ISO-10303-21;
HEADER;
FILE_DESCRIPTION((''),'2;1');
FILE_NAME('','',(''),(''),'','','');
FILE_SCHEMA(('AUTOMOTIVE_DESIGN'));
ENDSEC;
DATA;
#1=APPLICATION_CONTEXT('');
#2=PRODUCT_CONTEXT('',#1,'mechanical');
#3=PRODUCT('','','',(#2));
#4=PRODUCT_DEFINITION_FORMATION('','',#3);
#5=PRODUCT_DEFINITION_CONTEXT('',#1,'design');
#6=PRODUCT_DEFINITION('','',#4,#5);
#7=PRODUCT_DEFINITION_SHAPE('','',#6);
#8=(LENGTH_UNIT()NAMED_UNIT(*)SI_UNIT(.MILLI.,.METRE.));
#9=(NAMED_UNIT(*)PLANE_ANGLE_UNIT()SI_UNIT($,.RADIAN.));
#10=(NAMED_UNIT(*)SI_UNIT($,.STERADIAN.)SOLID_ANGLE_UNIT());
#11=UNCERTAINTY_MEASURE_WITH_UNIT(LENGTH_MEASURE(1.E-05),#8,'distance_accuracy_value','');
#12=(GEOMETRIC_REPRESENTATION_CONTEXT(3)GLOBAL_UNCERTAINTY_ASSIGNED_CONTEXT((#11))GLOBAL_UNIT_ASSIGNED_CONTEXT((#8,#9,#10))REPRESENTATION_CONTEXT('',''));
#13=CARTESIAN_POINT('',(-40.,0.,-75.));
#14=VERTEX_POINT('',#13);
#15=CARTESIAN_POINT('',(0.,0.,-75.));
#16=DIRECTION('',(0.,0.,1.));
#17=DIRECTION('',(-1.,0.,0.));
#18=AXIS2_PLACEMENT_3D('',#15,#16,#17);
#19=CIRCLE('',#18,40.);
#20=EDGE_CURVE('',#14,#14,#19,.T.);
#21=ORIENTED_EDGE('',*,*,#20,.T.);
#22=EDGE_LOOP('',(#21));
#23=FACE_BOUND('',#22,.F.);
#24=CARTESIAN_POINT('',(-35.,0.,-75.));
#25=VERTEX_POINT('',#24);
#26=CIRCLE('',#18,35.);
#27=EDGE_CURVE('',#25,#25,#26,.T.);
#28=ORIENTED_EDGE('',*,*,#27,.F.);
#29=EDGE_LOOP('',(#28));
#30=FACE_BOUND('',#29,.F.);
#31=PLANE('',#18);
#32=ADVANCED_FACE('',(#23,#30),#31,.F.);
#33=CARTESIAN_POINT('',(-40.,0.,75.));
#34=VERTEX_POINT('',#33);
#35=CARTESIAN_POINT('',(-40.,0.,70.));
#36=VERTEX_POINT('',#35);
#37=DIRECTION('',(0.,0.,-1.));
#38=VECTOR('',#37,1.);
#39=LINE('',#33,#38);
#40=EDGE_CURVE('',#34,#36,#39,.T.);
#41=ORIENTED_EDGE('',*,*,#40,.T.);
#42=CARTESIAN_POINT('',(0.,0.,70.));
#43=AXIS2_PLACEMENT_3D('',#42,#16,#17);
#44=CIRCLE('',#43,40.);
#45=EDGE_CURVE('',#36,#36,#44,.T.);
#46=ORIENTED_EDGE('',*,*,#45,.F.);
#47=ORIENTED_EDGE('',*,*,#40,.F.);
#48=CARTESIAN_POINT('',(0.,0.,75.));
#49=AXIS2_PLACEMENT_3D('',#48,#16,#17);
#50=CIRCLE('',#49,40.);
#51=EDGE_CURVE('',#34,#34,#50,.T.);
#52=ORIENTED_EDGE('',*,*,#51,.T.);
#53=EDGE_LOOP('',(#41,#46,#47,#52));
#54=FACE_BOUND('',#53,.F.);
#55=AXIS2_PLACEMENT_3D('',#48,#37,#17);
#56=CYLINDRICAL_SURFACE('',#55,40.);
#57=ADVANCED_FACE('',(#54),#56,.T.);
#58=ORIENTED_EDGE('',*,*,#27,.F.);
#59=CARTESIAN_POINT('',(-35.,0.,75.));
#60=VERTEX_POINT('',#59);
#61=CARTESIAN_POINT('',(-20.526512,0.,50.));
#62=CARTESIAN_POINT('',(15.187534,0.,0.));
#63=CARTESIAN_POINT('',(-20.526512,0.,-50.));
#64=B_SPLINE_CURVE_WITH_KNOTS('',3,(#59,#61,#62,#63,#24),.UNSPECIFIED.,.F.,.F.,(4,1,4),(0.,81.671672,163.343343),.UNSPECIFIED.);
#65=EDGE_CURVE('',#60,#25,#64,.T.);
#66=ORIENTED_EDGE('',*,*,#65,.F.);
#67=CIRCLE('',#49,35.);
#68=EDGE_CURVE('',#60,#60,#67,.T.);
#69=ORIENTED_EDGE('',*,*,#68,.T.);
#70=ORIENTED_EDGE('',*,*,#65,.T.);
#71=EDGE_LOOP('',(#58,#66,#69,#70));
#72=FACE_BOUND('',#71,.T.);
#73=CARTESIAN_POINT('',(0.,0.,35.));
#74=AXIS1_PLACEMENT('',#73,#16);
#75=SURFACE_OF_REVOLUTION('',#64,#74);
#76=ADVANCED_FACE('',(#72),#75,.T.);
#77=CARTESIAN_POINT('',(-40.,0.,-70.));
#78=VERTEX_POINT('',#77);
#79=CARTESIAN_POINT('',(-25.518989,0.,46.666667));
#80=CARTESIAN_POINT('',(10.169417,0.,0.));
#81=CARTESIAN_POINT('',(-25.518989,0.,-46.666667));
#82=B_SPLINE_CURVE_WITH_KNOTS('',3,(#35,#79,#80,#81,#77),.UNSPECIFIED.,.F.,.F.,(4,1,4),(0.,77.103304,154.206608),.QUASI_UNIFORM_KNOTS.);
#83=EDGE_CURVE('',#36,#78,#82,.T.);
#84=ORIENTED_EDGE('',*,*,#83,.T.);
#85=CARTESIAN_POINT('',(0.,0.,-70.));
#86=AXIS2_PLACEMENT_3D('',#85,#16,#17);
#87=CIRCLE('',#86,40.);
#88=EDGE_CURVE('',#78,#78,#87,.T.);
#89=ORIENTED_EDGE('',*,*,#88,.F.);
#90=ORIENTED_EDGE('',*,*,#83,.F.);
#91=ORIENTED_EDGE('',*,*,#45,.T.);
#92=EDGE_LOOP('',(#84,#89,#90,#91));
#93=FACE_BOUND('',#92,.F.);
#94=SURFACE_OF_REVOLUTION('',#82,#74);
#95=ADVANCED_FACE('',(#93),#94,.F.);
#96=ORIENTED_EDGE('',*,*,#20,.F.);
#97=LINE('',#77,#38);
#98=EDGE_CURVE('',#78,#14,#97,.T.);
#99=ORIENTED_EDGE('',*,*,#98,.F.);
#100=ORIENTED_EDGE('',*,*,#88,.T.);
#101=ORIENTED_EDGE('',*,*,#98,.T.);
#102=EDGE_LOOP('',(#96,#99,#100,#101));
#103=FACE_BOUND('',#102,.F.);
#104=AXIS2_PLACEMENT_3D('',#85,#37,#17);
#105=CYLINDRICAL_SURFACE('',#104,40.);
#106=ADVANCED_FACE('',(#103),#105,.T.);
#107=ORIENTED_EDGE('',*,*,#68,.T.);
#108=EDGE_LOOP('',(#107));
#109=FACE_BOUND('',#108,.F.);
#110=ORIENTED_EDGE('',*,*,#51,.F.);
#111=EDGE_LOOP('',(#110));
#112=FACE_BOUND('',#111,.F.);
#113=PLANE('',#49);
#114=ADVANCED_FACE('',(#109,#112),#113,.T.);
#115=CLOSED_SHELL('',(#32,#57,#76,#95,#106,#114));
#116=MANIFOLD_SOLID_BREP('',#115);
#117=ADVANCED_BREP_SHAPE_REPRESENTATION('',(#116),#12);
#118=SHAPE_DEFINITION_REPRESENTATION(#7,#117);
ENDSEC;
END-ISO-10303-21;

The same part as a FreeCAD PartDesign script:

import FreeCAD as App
import Part
import Sketcher

V = App.Vector

doc = App.newDocument("Part")
body = doc.addObject("PartDesign::Body", "Body")

sketch1 = body.newObject("Sketcher::SketchObject", "Sketch")
sketch1.AttachmentSupport = (doc.getObject("XZ_Plane"), [""])
sketch1.MapMode = "FlatFace"
sketch1.addGeometry(Part.LineSegment(V(-40, 75, 0), V(-40, 70, 0)), False)
sketch1.addGeometry(Part.BSplineCurve([V(-40, 70, 0), V(-25.518989, 46.666667, 0), V(10.169417, 0, 0), V(-25.518989, -46.666667, 0), V(-40, -70, 0)], [4, 1, 4], [0, 77.103304, 154.206608], False, 3, [1, 1, 1, 1, 1], False), False)
sketch1.addGeometry(Part.LineSegment(V(-40, -70, 0), V(-40, -75, 0)), False)
sketch1.addGeometry(Part.LineSegment(V(-40, -75, 0), V(-35, -75, 0)), False)
sketch1.addGeometry(Part.BSplineCurve([V(-35, 75, 0), V(-20.526512, 50, 0), V(15.187534, 0, 0), V(-20.526512, -50, 0), V(-35, -75, 0)], [4, 1, 4], [0, 81.671672, 163.343343], False, 3, [1, 1, 1, 1, 1], False), False)
sketch1.addGeometry(Part.LineSegment(V(-35, 75, 0), V(-40, 75, 0)), False)
sketch1.addConstraint(Sketcher.Constraint("Block", 1))
sketch1.addConstraint(Sketcher.Constraint("Block", 4))
sketch1.addConstraint(Sketcher.Constraint("Coincident", 0, 2, 1, 1))
sketch1.addConstraint(Sketcher.Constraint("Coincident", 1, 2, 2, 1))
sketch1.addConstraint(Sketcher.Constraint("Coincident", 2, 2, 3, 1))
sketch1.addConstraint(Sketcher.Constraint("Coincident", 3, 2, 4, 2))
sketch1.addConstraint(Sketcher.Constraint("Coincident", 4, 1, 5, 1))
sketch1.addConstraint(Sketcher.Constraint("Coincident", 5, 2, 0, 1))
sketch1.addConstraint(Sketcher.Constraint("Vertical", 0))
sketch1.addConstraint(Sketcher.Constraint("Vertical", 2))
sketch1.addConstraint(Sketcher.Constraint("Horizontal", 3))
sketch1.addConstraint(Sketcher.Constraint("Horizontal", 5))
revolution = body.newObject("PartDesign::Revolution", "Revolution")
revolution.Profile = sketch1
revolution.ReferenceAxis = (sketch1, ["V_Axis"])
revolution.Angle = 360

doc.recompute()
